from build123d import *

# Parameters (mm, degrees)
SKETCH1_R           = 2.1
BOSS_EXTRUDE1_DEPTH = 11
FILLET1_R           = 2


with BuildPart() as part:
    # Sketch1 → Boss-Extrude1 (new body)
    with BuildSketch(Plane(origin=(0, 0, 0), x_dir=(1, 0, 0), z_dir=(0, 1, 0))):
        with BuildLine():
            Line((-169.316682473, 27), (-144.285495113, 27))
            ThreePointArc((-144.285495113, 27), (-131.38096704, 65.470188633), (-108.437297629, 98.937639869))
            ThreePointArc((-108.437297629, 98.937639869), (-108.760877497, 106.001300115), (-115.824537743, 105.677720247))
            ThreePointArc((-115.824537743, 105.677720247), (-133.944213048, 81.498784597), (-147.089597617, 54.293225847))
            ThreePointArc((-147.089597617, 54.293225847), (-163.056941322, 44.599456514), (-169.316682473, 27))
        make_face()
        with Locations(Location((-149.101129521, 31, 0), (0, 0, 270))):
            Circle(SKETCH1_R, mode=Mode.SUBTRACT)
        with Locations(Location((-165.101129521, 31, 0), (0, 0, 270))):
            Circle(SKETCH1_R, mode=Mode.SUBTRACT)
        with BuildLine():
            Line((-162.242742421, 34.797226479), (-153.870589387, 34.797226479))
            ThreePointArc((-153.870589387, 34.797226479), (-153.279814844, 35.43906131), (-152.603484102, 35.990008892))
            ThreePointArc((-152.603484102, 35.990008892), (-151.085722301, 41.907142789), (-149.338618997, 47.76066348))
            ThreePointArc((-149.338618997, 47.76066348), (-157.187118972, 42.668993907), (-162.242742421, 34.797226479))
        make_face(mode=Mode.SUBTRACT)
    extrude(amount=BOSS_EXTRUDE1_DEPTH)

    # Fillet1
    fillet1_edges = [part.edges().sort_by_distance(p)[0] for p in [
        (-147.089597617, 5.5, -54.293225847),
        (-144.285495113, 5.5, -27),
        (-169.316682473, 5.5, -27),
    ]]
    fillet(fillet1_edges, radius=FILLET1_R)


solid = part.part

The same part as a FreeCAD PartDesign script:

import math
import FreeCAD as App
import Part
import Sketcher

V = App.Vector


def edges_at(feature, points):
    """Names of the edges that pass closest to the given points."""
    edges = feature.Shape.Edges
    near = lambda p: min(range(len(edges)), key=lambda i: edges[i].distToShape(Part.Vertex(*p))[0])
    return sorted({f"Edge{near(p) + 1}" for p in points})

doc = App.newDocument("Part")
params = doc.addObject("Spreadsheet::Sheet", "Params")
for row, (alias, value) in enumerate([
    ("sketch1_radius", "5 mm"),
    ("sketch1_diameter", "4.2 mm"),
    ("sketch1_radius2", "146.79 mm"),
    ("pad1_length", "11 mm"),
    ("fillet_radius", "2 mm"),
], start=1):
    params.set(f"A{row}", alias)
    params.set(f"B{row}", "=" + value)
    params.setAlias(f"B{row}", alias)

body = doc.addObject("PartDesign::Body", "Body")

sketch1 = doc.addObject("Sketcher::SketchObject", "Sketch")
body.addObject(sketch1)
sketch1.AttachmentSupport = (doc.XZ_Plane, [""])
sketch1.MapMode = "FlatFace"
sketch1.addGeometry([
    Part.LineSegment(V(-169.3, -27, 0), V(-144.3, -27, 0)),
    Part.ArcOfCircle(Part.Circle(V(0, 0, 0), V(0, 0, 1), 146.8), math.radians(-169), math.radians(-138)),
    Part.ArcOfCircle(Part.Circle(V(-112.1, -102.3, 0), V(0, 0, 1), 5), math.radians(-138), math.radians(42)),
    Part.ArcOfCircle(Part.Circle(V(0, 0, 0), V(0, 0, 1), 156.8), math.radians(-160), math.radians(-138)),
    Part.ArcOfCircle(Part.Circle(V(-141.4, -27, 0), V(0, 0, 1), 27.9), math.radians(180), math.radians(258)),
    Part.Circle(V(-165.1, -31, 0), V(0, 0, 1), 2.1),
    Part.Circle(V(-149.1, -31, 0), V(0, 0, 1), 2.1),
    Part.LineSegment(V(-153.9, -34.8, 0), V(-162.2, -34.8, 0)),
    Part.ArcOfCircle(Part.Circle(V(-141.4, -27, 0), V(0, 0, 1), 22.2), math.radians(-159), math.radians(-111)),
    Part.ArcOfCircle(Part.Circle(V(0, 0, 0), V(0, 0, 1), 156.8), math.radians(-166.73), math.radians(-162.26)),
    Part.ArcOfCircle(Part.Circle(V(-149.1, -31, 0), V(0, 0, 1), 6.1), math.radians(-141.47), math.radians(-125.06)),
], False)
sketch1.addConstraint([
    Sketcher.Constraint("Coincident", 0, 2, 1, 1),
    Sketcher.Constraint("Tangent", 1, 2, 2, 2),
    Sketcher.Constraint("Tangent", 2, 1, 3, 2),
    Sketcher.Constraint("Coincident", 3, 1, 4, 2),
    Sketcher.Constraint("Coincident", 4, 1, 0, 1),
    Sketcher.Constraint("Coincident", 7, 2, 8, 1),
    Sketcher.Constraint("Coincident", 8, 2, 9, 2),
    Sketcher.Constraint("Coincident", 9, 1, 10, 2),
    Sketcher.Constraint("Coincident", 10, 1, 7, 1),
    Sketcher.Constraint("Horizontal", 0),
    Sketcher.Constraint("Horizontal", 7),
    Sketcher.Constraint("Coincident", 1, 3, -1, 1),
    Sketcher.Constraint("Coincident", 3, 3, -1, 1),
    Sketcher.Constraint("Coincident", 9, 3, -1, 1),
    Sketcher.Constraint("Coincident", 8, 3, 4, 3),
    Sketcher.Constraint("Coincident", 10, 3, 6, 3),
    Sketcher.Constraint("Equal", 5, 6),
    Sketcher.Constraint("Equal", 3, 9),
    Sketcher.Constraint("Horizontal", 5, 3, 6, 3),
    Sketcher.Constraint("Horizontal", 8, 3, 0, 2),
    Sketcher.Constraint("Radius", 2, 5.0),
    Sketcher.Constraint("Diameter", 5, 4.2),
    Sketcher.Constraint("Radius", 1, 146.79),
    Sketcher.Constraint("DistanceY", 4, 3, -1, 1, 27.0),
    Sketcher.Constraint("DistanceY", 5, 3, -1, 1, 31.0),
    Sketcher.Constraint("DistanceX", 5, 3, 6, 3, 16.0),
    Sketcher.Constraint("Radius", 4, 27.87058),
    Sketcher.Constraint("Radius", 8, 22.21029),
    Sketcher.Constraint("Radius", 10, 6.096448),
    Sketcher.Constraint("DistanceX", 0, 1, 0, 2, 25.031187),
    Sketcher.Constraint("DistanceX", 7, 2, 7, 1, 8.372153),
    Sketcher.Constraint("DistanceY", 2, 3, -1, 1, 102.30768),
    Sketcher.Constraint("DistanceX", 5, 3, -1, 1, 165.10113),
])
sketch1.setExpression("Constraints[20]", "Params.sketch1_radius")
sketch1.setExpression("Constraints[21]", "Params.sketch1_diameter")
sketch1.setExpression("Constraints[22]", "Params.sketch1_radius2")
pad1 = doc.addObject("PartDesign::Pad", "Pad")
body.addObject(pad1)
pad1.Profile = sketch1
pad1.setExpression("Length", "Params.pad1_length")
pad1.Reversed = True
doc.recompute()

fillet = doc.addObject("PartDesign::Fillet", "Fillet")
body.addObject(fillet)
fillet.Base = (pad1, edges_at(pad1, [(-147.09, 5.5, -54.293), (-144.285, 5.5, -27), (-169.317, 5.5, -27)]))
fillet.setExpression("Radius", "Params.fillet_radius")

doc.recompute()
